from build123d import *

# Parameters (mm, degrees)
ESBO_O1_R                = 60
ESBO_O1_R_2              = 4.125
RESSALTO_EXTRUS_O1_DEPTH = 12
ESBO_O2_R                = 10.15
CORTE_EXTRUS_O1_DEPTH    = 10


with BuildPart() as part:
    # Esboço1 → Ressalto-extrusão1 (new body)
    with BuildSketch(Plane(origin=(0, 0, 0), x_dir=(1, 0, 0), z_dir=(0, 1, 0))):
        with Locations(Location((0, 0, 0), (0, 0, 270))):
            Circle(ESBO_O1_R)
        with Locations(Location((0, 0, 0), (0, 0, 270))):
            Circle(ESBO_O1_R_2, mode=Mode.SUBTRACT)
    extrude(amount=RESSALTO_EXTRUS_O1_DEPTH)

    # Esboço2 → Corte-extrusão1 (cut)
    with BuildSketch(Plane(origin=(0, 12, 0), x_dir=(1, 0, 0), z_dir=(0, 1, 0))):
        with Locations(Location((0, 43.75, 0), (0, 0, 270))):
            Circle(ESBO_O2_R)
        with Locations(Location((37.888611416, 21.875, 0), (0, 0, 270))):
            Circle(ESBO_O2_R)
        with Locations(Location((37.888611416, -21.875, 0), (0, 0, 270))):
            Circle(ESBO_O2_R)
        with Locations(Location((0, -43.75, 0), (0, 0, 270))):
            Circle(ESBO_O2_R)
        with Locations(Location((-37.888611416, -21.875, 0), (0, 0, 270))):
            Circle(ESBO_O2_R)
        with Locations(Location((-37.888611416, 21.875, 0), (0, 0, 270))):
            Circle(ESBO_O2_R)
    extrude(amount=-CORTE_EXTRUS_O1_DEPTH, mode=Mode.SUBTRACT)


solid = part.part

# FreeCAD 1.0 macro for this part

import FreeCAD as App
import Part
import Sketcher
from FreeCAD import Vector
Q = App.Units.Quantity

doc = App.newDocument("Part")
body = doc.addObject("PartDesign::Body", "Body")

# Sketch on XZ plane
sketch1 = body.newObject("Sketcher::SketchObject", "Sketch")
sketch1.AttachmentSupport = (doc.getObject("XZ_Plane"), [""])
sketch1.MapMode = "FlatFace"
sketch1.addGeometry([
    Part.Circle(Vector(0, 0, 0), Vector(0, 0, 1), 60),
    Part.Circle(Vector(0, 0, 0), Vector(0, 0, 1), 4.125),
], False)
sketch1.addConstraint([
    Sketcher.Constraint("Coincident", 0, 3, -1, 1),
    Sketcher.Constraint("Coincident", 1, 3, -1, 1),
    Sketcher.Constraint("Diameter", 0, Q("120 mm")),
    Sketcher.Constraint("Diameter", 1, Q("8.25 mm")),
])
pad1 = body.newObject("PartDesign::Pad", "Pad")
pad1.Profile = sketch1
pad1.Length = 12
pad1.Reversed = True

# Sketch on XZ plane
sketch2 = body.newObject("Sketcher::SketchObject", "Sketch001")
sketch2.AttachmentSupport = (doc.getObject("XZ_Plane"), [""])
sketch2.MapMode = "FlatFace"
sketch2.AttachmentOffset = App.Placement(Vector(0, 0, -12), App.Rotation())
sketch2.addGeometry([
    Part.Circle(Vector(0, -43.75, 0), Vector(0, 0, 1), 10.15),  # 0
    Part.Circle(Vector(37.888611, -21.875, 0), Vector(0, 0, 1), 10.15),  # 1
    Part.Circle(Vector(37.888611, 21.875, 0), Vector(0, 0, 1), 10.15),  # 2
    Part.Circle(Vector(0, 43.75, 0), Vector(0, 0, 1), 10.15),  # 3
    Part.Circle(Vector(-37.888611, 21.875, 0), Vector(0, 0, 1), 10.15),  # 4
    Part.Circle(Vector(-37.888611, -21.875, 0), Vector(0, 0, 1), 10.15),  # 5
], False)
sketch2.addConstraint([
    Sketcher.Constraint("Equal", 0, 1),
    Sketcher.Constraint("Equal", 1, 2),
    Sketcher.Constraint("Equal", 2, 3),
    Sketcher.Constraint("Equal", 3, 4),
    Sketcher.Constraint("Equal", 4, 5),
    Sketcher.Constraint("Symmetric", 0, 3, 3, 3, -1, 1),
    Sketcher.Constraint("Symmetric", 1, 3, 4, 3, -1, 1),
    Sketcher.Constraint("Symmetric", 2, 3, 5, 3, -1, 1),
    Sketcher.Constraint("Symmetric", 2, 3, 4, 3, -2),
    Sketcher.Constraint("PointOnObject", 0, 3, -2),
    Sketcher.Constraint("Diameter", 0, Q("20.3 mm")),
    Sketcher.Constraint("DistanceY", 0, 3, 3, 3, Q("87.5 mm")),
    Sketcher.Constraint("DistanceY", 1, 3, 2, 3, Q("43.75 mm")),
    Sketcher.Constraint("DistanceX", -1, 1, 1, 3, Q("37.888611 mm")),
])
pocket1 = body.newObject("PartDesign::Pocket", "Pocket")
pocket1.Profile = sketch2
pocket1.Length = 10
pocket1.Reversed = True

doc.recompute()
